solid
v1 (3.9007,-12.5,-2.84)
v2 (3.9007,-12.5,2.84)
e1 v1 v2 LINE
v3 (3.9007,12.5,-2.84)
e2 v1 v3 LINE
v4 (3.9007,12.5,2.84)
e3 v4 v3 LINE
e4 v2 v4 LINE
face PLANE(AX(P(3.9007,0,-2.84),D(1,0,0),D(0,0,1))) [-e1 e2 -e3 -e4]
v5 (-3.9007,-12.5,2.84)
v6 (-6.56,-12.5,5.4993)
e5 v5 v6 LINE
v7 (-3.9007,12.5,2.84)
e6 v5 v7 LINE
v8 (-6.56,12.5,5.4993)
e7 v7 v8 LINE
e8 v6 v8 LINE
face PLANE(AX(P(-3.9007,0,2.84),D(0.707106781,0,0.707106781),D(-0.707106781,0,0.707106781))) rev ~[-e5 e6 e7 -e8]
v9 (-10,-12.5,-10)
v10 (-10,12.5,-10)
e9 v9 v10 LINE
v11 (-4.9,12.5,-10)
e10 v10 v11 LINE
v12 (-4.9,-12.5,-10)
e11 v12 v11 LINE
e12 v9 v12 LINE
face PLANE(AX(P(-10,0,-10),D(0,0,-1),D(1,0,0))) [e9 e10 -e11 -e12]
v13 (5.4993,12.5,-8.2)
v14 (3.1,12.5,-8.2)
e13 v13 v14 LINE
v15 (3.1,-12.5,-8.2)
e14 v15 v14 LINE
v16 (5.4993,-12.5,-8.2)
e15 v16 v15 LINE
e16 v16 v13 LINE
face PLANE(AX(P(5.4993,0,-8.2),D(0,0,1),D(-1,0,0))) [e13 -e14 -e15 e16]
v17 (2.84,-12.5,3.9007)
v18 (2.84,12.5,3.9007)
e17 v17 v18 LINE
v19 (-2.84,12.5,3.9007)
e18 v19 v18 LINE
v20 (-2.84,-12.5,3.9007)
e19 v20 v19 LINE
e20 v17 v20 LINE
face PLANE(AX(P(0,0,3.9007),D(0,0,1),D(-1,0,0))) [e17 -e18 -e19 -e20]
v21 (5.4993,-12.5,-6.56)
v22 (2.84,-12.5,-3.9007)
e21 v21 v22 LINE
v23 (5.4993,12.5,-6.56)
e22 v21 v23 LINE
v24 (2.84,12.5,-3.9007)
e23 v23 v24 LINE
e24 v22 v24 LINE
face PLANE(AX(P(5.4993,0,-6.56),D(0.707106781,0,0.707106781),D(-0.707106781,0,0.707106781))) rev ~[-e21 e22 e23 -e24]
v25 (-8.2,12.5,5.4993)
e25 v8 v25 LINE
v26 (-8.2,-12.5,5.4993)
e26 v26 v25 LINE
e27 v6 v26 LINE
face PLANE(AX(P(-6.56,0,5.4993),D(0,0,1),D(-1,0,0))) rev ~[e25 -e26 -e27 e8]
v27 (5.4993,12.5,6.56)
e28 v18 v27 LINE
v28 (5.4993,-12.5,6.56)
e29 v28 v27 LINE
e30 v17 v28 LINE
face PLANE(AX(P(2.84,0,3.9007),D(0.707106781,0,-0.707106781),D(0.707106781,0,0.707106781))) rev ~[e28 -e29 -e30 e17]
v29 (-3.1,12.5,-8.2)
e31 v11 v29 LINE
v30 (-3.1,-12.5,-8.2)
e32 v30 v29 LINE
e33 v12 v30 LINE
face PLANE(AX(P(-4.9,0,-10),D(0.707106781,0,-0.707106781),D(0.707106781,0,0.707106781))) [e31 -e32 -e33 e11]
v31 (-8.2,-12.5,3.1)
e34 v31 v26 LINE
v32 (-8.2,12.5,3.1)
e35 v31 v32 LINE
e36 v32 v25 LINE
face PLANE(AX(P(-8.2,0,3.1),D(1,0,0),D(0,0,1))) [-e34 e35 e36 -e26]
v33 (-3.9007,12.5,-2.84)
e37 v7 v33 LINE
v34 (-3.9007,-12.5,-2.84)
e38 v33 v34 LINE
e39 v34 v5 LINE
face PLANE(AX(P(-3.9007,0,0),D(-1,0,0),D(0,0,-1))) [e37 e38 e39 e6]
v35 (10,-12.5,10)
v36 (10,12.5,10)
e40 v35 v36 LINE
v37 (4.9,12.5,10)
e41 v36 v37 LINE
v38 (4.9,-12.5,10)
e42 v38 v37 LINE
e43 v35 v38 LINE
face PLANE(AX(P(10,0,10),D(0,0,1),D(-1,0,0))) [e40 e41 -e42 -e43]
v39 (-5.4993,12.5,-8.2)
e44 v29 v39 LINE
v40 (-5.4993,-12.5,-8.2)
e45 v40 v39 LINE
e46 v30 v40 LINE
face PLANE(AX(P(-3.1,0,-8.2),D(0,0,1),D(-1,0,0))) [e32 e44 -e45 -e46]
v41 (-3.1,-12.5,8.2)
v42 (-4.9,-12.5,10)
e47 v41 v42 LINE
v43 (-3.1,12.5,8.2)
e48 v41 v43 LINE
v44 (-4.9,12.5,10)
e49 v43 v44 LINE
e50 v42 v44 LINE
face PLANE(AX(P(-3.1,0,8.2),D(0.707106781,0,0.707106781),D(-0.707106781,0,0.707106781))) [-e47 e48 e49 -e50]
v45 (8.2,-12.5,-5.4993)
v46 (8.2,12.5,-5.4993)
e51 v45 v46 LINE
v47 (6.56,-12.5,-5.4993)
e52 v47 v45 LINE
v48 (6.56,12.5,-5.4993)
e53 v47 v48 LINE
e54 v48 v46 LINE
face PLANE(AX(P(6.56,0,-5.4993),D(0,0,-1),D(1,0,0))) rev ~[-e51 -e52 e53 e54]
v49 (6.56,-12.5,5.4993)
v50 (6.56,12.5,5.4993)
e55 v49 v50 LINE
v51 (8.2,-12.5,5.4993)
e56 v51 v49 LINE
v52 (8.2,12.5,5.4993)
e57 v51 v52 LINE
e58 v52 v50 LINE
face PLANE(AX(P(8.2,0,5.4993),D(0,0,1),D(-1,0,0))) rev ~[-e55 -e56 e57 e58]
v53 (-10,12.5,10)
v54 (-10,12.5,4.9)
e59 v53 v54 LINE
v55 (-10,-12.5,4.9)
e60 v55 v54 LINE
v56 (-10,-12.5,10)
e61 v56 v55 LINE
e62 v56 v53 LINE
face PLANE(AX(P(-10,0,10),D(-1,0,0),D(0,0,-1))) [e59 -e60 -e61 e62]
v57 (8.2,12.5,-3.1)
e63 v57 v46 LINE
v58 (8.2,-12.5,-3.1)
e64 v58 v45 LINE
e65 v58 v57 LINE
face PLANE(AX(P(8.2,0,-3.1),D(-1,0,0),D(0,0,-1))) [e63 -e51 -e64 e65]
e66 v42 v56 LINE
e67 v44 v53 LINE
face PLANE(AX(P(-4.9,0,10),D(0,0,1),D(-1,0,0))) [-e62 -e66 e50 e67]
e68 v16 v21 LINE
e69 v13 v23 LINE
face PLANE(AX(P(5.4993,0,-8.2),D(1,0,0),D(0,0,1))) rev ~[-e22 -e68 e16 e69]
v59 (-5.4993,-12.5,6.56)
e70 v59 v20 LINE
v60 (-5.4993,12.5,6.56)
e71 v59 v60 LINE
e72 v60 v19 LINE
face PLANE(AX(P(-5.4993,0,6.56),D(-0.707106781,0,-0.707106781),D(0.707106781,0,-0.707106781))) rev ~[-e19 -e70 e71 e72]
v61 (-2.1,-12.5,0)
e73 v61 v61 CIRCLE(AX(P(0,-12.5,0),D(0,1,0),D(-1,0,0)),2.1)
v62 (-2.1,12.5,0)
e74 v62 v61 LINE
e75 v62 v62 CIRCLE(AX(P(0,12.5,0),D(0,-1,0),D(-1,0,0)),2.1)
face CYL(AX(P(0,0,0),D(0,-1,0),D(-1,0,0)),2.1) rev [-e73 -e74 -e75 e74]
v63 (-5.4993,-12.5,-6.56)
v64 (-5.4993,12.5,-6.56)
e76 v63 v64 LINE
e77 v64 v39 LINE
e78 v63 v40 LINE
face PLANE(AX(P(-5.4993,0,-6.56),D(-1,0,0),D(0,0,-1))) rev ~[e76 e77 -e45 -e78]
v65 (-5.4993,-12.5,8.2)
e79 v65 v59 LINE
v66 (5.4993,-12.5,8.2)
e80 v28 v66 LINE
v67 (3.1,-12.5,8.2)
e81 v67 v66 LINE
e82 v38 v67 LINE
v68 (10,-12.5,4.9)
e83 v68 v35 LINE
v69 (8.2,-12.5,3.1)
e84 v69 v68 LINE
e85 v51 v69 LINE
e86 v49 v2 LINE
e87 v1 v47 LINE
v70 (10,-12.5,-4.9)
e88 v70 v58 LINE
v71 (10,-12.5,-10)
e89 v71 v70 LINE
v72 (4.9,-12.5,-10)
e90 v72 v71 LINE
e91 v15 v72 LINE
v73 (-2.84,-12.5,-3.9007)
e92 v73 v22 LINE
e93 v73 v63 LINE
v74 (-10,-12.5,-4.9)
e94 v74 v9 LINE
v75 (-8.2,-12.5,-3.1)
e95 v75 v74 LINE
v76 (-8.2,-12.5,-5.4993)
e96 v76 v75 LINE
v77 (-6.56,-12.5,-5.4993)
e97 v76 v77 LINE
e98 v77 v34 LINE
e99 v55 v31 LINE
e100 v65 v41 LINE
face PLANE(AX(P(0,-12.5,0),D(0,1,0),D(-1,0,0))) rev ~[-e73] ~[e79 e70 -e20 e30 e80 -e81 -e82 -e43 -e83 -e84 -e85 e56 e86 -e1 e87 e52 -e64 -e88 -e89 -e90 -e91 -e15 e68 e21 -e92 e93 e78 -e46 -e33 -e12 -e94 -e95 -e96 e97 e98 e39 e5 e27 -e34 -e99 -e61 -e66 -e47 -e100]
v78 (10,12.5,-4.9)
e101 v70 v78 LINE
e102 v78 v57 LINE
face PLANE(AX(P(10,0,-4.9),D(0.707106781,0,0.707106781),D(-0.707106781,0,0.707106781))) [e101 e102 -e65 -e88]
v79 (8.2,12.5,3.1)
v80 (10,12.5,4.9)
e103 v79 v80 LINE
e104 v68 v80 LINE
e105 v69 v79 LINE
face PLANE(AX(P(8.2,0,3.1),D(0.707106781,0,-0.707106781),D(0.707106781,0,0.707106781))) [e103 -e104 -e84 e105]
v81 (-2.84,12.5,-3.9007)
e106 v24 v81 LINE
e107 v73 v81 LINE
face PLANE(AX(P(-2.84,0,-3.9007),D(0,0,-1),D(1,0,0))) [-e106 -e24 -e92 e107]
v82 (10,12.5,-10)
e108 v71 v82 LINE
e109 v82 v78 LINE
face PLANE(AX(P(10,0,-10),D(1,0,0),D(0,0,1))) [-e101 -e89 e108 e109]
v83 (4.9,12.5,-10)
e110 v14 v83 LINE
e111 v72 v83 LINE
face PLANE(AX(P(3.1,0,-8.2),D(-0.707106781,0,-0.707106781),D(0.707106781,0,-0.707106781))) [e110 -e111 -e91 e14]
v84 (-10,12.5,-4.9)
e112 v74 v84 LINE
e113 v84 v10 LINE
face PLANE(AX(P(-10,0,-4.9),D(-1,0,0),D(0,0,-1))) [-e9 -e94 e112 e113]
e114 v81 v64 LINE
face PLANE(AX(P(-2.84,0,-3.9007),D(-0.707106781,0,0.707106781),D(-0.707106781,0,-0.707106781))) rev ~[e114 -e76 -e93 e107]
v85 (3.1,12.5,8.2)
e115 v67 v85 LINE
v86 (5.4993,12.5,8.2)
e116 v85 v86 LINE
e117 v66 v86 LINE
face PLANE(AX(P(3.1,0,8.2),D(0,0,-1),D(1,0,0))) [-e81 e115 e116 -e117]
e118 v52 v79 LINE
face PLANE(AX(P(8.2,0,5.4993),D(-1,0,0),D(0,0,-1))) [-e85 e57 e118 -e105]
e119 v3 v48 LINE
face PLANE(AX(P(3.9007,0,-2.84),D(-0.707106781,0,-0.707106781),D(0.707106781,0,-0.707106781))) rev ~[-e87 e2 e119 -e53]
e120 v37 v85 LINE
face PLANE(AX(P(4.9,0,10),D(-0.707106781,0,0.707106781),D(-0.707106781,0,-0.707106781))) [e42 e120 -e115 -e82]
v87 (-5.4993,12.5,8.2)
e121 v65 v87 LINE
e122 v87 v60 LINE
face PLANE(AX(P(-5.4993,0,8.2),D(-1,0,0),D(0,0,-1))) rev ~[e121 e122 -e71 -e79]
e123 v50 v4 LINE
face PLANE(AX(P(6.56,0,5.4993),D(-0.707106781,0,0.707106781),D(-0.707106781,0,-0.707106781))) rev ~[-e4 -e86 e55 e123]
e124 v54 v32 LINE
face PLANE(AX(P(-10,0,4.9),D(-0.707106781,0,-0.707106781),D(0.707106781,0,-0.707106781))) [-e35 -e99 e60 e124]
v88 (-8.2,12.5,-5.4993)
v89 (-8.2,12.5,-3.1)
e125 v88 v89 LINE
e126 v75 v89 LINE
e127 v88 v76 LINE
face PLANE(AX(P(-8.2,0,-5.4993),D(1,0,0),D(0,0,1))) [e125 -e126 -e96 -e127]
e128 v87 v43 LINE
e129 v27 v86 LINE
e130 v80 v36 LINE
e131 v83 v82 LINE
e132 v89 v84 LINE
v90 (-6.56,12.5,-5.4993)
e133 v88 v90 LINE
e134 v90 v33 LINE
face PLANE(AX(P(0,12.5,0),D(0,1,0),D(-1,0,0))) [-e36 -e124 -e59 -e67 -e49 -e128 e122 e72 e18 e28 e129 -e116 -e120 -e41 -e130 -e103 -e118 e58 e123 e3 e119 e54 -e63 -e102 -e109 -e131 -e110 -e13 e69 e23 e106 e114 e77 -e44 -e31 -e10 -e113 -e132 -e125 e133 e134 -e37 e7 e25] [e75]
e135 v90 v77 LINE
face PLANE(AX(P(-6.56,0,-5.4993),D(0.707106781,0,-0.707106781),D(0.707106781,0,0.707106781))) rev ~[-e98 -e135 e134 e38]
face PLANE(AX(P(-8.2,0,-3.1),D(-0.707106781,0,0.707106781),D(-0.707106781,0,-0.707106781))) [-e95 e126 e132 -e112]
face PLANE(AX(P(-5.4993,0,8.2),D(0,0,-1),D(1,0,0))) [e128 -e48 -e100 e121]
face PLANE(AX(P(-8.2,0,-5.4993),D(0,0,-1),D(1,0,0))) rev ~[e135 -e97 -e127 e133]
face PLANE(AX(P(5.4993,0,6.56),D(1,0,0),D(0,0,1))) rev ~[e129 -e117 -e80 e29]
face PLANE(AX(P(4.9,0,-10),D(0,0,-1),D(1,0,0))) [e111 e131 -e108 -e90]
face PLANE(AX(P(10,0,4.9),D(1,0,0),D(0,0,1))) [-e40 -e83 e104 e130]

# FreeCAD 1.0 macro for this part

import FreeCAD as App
import Part
import Sketcher
from FreeCAD import Vector

doc = App.newDocument("Part")
body = doc.addObject("PartDesign::Body", "Body")

# Sketch on XZ plane
sketch1 = body.newObject("Sketcher::SketchObject", "Sketch")
sketch1.AttachmentSupport = (doc.getObject("XZ_Plane"), [""])
sketch1.MapMode = "FlatFace"
sketch1.addGeometry([
    Part.LineSegment(Vector(-3.9, -2.8, 0), Vector(-3.9, 2.8, 0)),  # 0
    Part.LineSegment(Vector(-3.9, 2.8, 0), Vector(-6.6, 5.5, 0)),  # 1
    Part.LineSegment(Vector(-6.6, 5.5, 0), Vector(-8.2, 5.5, 0)),  # 2
    Part.LineSegment(Vector(-8.2, 5.5, 0), Vector(-8.2, 3.1, 0)),  # 3
    Part.LineSegment(Vector(-8.2, 3.1, 0), Vector(-10, 4.9, 0)),  # 4
    Part.LineSegment(Vector(-10, 4.9, 0), Vector(-10, 10, 0)),  # 5
    Part.LineSegment(Vector(-10, 10, 0), Vector(-4.9, 10, 0)),  # 6
    Part.LineSegment(Vector(-4.9, 10, 0), Vector(-3.1, 8.2, 0)),  # 7
    Part.LineSegment(Vector(-3.1, 8.2, 0), Vector(-5.5, 8.2, 0)),  # 8
    Part.LineSegment(Vector(-5.5, 8.2, 0), Vector(-5.5, 6.6, 0)),  # 9
    Part.LineSegment(Vector(-5.5, 6.6, 0), Vector(-2.8, 3.9, 0)),  # 10
    Part.LineSegment(Vector(-2.8, 3.9, 0), Vector(2.8, 3.9, 0)),  # 11
    Part.LineSegment(Vector(2.8, 3.9, 0), Vector(5.5, 6.6, 0)),  # 12
    Part.LineSegment(Vector(5.5, 6.6, 0), Vector(5.5, 8.2, 0)),  # 13
    Part.LineSegment(Vector(5.5, 8.2, 0), Vector(3.1, 8.2, 0)),  # 14
    Part.LineSegment(Vector(3.1, 8.2, 0), Vector(4.9, 10, 0)),  # 15
    Part.LineSegment(Vector(4.9, 10, 0), Vector(10, 10, 0)),  # 16
    Part.LineSegment(Vector(10, 10, 0), Vector(10, 4.9, 0)),  # 17
    Part.LineSegment(Vector(10, 4.9, 0), Vector(8.2, 3.1, 0)),  # 18
    Part.LineSegment(Vector(8.2, 3.1, 0), Vector(8.2, 5.5, 0)),  # 19
    Part.LineSegment(Vector(8.2, 5.5, 0), Vector(6.6, 5.5, 0)),  # 20
    Part.LineSegment(Vector(6.6, 5.5, 0), Vector(3.9, 2.8, 0)),  # 21
    Part.LineSegment(Vector(3.9, 2.8, 0), Vector(3.9, -2.8, 0)),  # 22
    Part.LineSegment(Vector(3.9, -2.8, 0), Vector(6.6, -5.5, 0)),  # 23
    Part.LineSegment(Vector(6.6, -5.5, 0), Vector(8.2, -5.5, 0)),  # 24
    Part.LineSegment(Vector(8.2, -5.5, 0), Vector(8.2, -3.1, 0)),  # 25
    Part.LineSegment(Vector(8.2, -3.1, 0), Vector(10, -4.9, 0)),  # 26
    Part.LineSegment(Vector(10, -4.9, 0), Vector(10, -10, 0)),  # 27
    Part.LineSegment(Vector(10, -10, 0), Vector(4.9, -10, 0)),  # 28
    Part.LineSegment(Vector(4.9, -10, 0), Vector(3.1, -8.2, 0)),  # 29
    Part.LineSegment(Vector(3.1, -8.2, 0), Vector(5.5, -8.2, 0)),  # 30
    Part.LineSegment(Vector(5.5, -8.2, 0), Vector(5.5, -6.6, 0)),  # 31
    Part.LineSegment(Vector(5.5, -6.6, 0), Vector(2.8, -3.9, 0)),  # 32
    Part.LineSegment(Vector(2.8, -3.9, 0), Vector(-2.8, -3.9, 0)),  # 33
    Part.LineSegment(Vector(-2.8, -3.9, 0), Vector(-5.5, -6.6, 0)),  # 34
    Part.LineSegment(Vector(-5.5, -6.6, 0), Vector(-5.5, -8.2, 0)),  # 35
    Part.LineSegment(Vector(-5.5, -8.2, 0), Vector(-3.1, -8.2, 0)),  # 36
    Part.LineSegment(Vector(-3.1, -8.2, 0), Vector(-4.9, -10, 0)),  # 37
    Part.LineSegment(Vector(-4.9, -10, 0), Vector(-10, -10, 0)),  # 38
    Part.LineSegment(Vector(-10, -10, 0), Vector(-10, -4.9, 0)),  # 39
    Part.LineSegment(Vector(-10, -4.9, 0), Vector(-8.2, -3.1, 0)),  # 40
    Part.LineSegment(Vector(-8.2, -3.1, 0), Vector(-8.2, -5.5, 0)),  # 41
    Part.LineSegment(Vector(-8.2, -5.5, 0), Vector(-6.6, -5.5, 0)),  # 42
    Part.LineSegment(Vector(-6.6, -5.5, 0), Vector(-3.9, -2.8, 0)),  # 43
    Part.Circle(Vector(0, 0, 0), Vector(0, 0, 1), 2.1),  # 44
], False)
sketch1.addConstraint([
    Sketcher.Constraint("Coincident", 0, 2, 1, 1),
    Sketcher.Constraint("Coincident", 1, 2, 2, 1),
    Sketcher.Constraint("Coincident", 2, 2, 3, 1),
    Sketcher.Constraint("Coincident", 3, 2, 4, 1),
    Sketcher.Constraint("Coincident", 4, 2, 5, 1),
    Sketcher.Constraint("Coincident", 5, 2, 6, 1),
    Sketcher.Constraint("Coincident", 6, 2, 7, 1),
    Sketcher.Constraint("Coincident", 7, 2, 8, 1),
    Sketcher.Constraint("Coincident", 8, 2, 9, 1),
    Sketcher.Constraint("Coincident", 9, 2, 10, 1),
    Sketcher.Constraint("Coincident", 10, 2, 11, 1),
    Sketcher.Constraint("Coincident", 11, 2, 12, 1),
    Sketcher.Constraint("Coincident", 12, 2, 13, 1),
    Sketcher.Constraint("Coincident", 13, 2, 14, 1),
    Sketcher.Constraint("Coincident", 14, 2, 15, 1),
    Sketcher.Constraint("Coincident", 15, 2, 16, 1),
    Sketcher.Constraint("Coincident", 16, 2, 17, 1),
    Sketcher.Constraint("Coincident", 17, 2, 18, 1),
    Sketcher.Constraint("Coincident", 18, 2, 19, 1),
    Sketcher.Constraint("Coincident", 19, 2, 20, 1),
    Sketcher.Constraint("Coincident", 20, 2, 21, 1),
    Sketcher.Constraint("Coincident", 21, 2, 22, 1),
    Sketcher.Constraint("Coincident", 22, 2, 23, 1),
    Sketcher.Constraint("Coincident", 23, 2, 24, 1),
    Sketcher.Constraint("Coincident", 24, 2, 25, 1),
    Sketcher.Constraint("Coincident", 25, 2, 26, 1),
    Sketcher.Constraint("Coincident", 26, 2, 27, 1),
    Sketcher.Constraint("Coincident", 27, 2, 28, 1),
    Sketcher.Constraint("Coincident", 28, 2, 29, 1),
    Sketcher.Constraint("Coincident", 29, 2, 30, 1),
    Sketcher.Constraint("Coincident", 30, 2, 31, 1),
    Sketcher.Constraint("Coincident", 31, 2, 32, 1),
    Sketcher.Constraint("Coincident", 32, 2, 33, 1),
    Sketcher.Constraint("Coincident", 33, 2, 34, 1),
    Sketcher.Constraint("Coincident", 34, 2, 35, 1),
    Sketcher.Constraint("Coincident", 35, 2, 36, 1),
    Sketcher.Constraint("Coincident", 36, 2, 37, 1),
    Sketcher.Constraint("Coincident", 37, 2, 38, 1),
    Sketcher.Constraint("Coincident", 38, 2, 39, 1),
    Sketcher.Constraint("Coincident", 39, 2, 40, 1),
    Sketcher.Constraint("Coincident", 40, 2, 41, 1),
    Sketcher.Constraint("Coincident", 41, 2, 42, 1),
    Sketcher.Constraint("Coincident", 42, 2, 43, 1),
    Sketcher.Constraint("Coincident", 43, 2, 0, 1),
    Sketcher.Constraint("Vertical", 0),
    Sketcher.Constraint("Horizontal", 2),
    Sketcher.Constraint("Vertical", 3),
    Sketcher.Constraint("Vertical", 5),
    Sketcher.Constraint("Horizontal", 6),
    Sketcher.Constraint("Horizontal", 8),
    Sketcher.Constraint("Vertical", 9),
    Sketcher.Constraint("Horizontal", 11),
    Sketcher.Constraint("Vertical", 13),
    Sketcher.Constraint("Horizontal", 14),
    Sketcher.Constraint("Horizontal", 16),
    Sketcher.Constraint("Vertical", 17),
    Sketcher.Constraint("Vertical", 19),
    Sketcher.Constraint("Horizontal", 20),
    Sketcher.Constraint("Vertical", 22),
    Sketcher.Constraint("Horizontal", 24),
    Sketcher.Constraint("Vertical", 25),
    Sketcher.Constraint("Vertical", 27),
    Sketcher.Constraint("Horizontal", 28),
    Sketcher.Constraint("Horizontal", 30),
    Sketcher.Constraint("Vertical", 31),
    Sketcher.Constraint("Horizontal", 33),
    Sketcher.Constraint("Vertical", 35),
    Sketcher.Constraint("Horizontal", 36),
    Sketcher.Constraint("Horizontal", 38),
    Sketcher.Constraint("Vertical", 39),
    Sketcher.Constraint("Vertical", 41),
    Sketcher.Constraint("Horizontal", 42),
    Sketcher.Constraint("Coincident", 44, 3, -1, 1),
    Sketcher.Constraint("Symmetric", 0, 2, 22, 2, -1, 1),
    Sketcher.Constraint("Symmetric", 1, 2, 23, 2, -1, 1),
    Sketcher.Constraint("Symmetric", 3, 2, 25, 2, -1, 1),
    Sketcher.Constraint("Symmetric", 4, 2, 26, 2, -1, 1),
    Sketcher.Constraint("Symmetric", 6, 2, 28, 2, -1, 1),
    Sketcher.Constraint("Symmetric", 7, 2, 29, 2, -1, 1),
    Sketcher.Constraint("Symmetric", 9, 2, 31, 2, -1, 1),
    Sketcher.Constraint("Symmetric", 10, 2, 32, 2, -1, 1),
    Sketcher.Constraint("Symmetric", 12, 2, 34, 2, -1, 1),
    Sketcher.Constraint("Symmetric", 14, 2, 36, 2, -1, 1),
    Sketcher.Constraint("Symmetric", 15, 2, 37, 2, -1, 1),
    Sketcher.Constraint("Symmetric", 17, 2, 39, 2, -1, 1),
    Sketcher.Constraint("Symmetric", 18, 2, 40, 2, -1, 1),
    Sketcher.Constraint("Symmetric", 20, 2, 42, 2, -1, 1),
    Sketcher.Constraint("Symmetric", 9, 2, 12, 2, -2),
    Sketcher.Constraint("Symmetric", 7, 2, 14, 2, -2),
    Sketcher.Constraint("Symmetric", 6, 2, 15, 2, -2),
    Sketcher.Constraint("Symmetric", 4, 2, 17, 2, -2),
    Sketcher.Constraint("Symmetric", 3, 2, 18, 2, -2),
    Sketcher.Constraint("Symmetric", 1, 2, 20, 2, -2),
    Sketcher.Constraint("Parallel", 1, 4),
    Sketcher.Constraint("Parallel", 4, 7),
    Sketcher.Constraint("Parallel", 7, 10),
    Sketcher.Constraint("Perpendicular", 10, 12),
    Sketcher.Constraint("Parallel", 12, 15),
    Sketcher.Constraint("Parallel", 18, 21),
    Sketcher.Constraint("Perpendicular", 32, 34),
    Sketcher.Constraint("Parallel", 40, 43),
    Sketcher.Constraint("Equal", 33, 0),
    Sketcher.Constraint("Equal", 36, 3),
    Sketcher.Constraint("Equal", 38, 5),
    Sketcher.Constraint("Equal", 42, 9),
    Sketcher.Constraint("Equal", 4, 7),
    Sketcher.Constraint("Equal", 1, 10),
    Sketcher.Constraint("Diameter", 44, 4.2),
    Sketcher.Constraint("DistanceX", 4, 2, -1, 1, 10.0),
    Sketcher.Constraint("DistanceX", 2, 2, 2, 1, 1.64),
    Sketcher.Constraint("DistanceY", -1, 1, 3, 2, 3.1),
    Sketcher.Constraint("DistanceX", 4, 2, 2, 2, 1.8),
    Sketcher.Constraint("DistanceY", -1, 1, 0, 2, 2.84),
    Sketcher.Constraint("DistanceX", 8, 2, 8, 1, 2.3993),
])
pad1 = body.newObject("PartDesign::Pad", "Pad")
pad1.Profile = sketch1
pad1.Length = 25
pad1.Midplane = True

doc.recompute()
